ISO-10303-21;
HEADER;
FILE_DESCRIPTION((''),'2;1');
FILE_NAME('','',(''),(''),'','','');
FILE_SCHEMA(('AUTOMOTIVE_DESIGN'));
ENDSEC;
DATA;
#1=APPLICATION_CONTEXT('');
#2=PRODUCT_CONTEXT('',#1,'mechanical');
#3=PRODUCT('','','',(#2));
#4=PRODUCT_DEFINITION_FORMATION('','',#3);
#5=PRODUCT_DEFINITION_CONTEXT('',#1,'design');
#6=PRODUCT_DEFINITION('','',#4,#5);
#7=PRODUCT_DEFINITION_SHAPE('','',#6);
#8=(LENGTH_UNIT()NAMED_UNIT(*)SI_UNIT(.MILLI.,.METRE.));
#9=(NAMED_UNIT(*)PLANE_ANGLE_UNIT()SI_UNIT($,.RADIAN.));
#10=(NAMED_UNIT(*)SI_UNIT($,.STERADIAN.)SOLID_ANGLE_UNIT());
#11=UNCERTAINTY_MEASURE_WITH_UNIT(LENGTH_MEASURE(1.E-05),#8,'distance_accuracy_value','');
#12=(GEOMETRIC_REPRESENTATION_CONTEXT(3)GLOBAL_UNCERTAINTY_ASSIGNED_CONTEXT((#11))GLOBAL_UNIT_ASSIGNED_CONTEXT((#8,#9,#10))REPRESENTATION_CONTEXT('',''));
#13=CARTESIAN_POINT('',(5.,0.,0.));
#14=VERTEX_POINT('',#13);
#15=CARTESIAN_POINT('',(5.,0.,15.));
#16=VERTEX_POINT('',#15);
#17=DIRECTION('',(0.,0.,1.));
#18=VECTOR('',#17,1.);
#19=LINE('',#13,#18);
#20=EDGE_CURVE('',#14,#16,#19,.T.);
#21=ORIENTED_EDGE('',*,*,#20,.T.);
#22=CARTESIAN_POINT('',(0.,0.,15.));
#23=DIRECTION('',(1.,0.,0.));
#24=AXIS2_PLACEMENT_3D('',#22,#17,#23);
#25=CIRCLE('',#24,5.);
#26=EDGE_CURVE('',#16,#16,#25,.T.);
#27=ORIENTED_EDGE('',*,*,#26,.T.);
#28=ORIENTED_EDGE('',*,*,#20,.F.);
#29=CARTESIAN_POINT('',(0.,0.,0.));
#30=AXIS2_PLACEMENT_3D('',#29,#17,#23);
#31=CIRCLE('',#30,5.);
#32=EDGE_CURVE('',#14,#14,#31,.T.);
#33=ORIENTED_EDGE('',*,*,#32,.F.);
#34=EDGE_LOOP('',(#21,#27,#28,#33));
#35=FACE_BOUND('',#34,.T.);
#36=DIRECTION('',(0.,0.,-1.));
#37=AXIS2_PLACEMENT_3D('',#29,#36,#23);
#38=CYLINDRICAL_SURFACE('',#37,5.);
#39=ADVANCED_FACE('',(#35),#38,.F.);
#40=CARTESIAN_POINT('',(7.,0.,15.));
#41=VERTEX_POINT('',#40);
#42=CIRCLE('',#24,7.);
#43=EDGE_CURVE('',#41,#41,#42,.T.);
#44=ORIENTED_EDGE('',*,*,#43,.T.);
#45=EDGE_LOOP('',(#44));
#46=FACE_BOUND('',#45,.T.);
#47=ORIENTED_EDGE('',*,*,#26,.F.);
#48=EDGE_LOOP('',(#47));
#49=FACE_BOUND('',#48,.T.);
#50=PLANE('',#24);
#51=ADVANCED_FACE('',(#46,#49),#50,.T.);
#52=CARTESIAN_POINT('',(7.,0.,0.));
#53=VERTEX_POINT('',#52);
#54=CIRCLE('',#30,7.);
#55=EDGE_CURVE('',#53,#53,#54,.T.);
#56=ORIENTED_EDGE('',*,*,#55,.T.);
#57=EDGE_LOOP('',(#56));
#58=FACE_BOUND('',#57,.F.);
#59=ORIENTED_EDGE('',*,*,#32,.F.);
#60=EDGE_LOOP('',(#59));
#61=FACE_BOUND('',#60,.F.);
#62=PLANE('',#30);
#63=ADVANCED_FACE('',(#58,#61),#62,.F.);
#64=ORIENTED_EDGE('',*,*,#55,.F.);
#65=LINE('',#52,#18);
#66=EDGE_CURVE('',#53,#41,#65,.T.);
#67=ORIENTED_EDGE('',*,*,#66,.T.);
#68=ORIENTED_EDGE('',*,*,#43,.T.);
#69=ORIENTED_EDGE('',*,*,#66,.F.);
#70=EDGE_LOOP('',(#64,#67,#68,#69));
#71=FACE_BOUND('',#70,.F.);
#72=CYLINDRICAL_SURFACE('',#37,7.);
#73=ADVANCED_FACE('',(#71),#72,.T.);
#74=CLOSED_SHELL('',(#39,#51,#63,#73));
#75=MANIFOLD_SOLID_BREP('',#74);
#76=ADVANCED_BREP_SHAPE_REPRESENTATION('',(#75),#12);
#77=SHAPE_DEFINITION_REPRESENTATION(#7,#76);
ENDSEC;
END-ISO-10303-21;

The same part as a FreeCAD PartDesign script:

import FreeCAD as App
import Part
import Sketcher
Q = App.Units.Quantity

doc = App.newDocument("Part")
body = doc.addObject("PartDesign::Body", "Body")

# Sketch on XY plane
sketch1 = doc.addObject("Sketcher::SketchObject", "Sketch")
body.addObject(sketch1)
sketch1.AttachmentSupport = (doc.XY_Plane, [""])
sketch1.MapMode = "FlatFace"
sketch1.addGeometry(Part.Circle(App.Vector(0, 0, 0), App.Vector(0, 0, 1), 7), False)
sketch1.addGeometry(Part.Circle(App.Vector(0, 0, 0), App.Vector(0, 0, 1), 5), False)
sketch1.addConstraint(Sketcher.Constraint("Coincident", 0, 3, -1, 1))
sketch1.addConstraint(Sketcher.Constraint("Coincident", 1, 3, -1, 1))
sketch1.addConstraint(Sketcher.Constraint("Diameter", 0, Q("14 mm")))
sketch1.addConstraint(Sketcher.Constraint("Diameter", 1, Q("10 mm")))
pad1 = doc.addObject("PartDesign::Pad", "Pad")
body.addObject(pad1)
pad1.Profile = sketch1
pad1.Length = 15

doc.recompute()
